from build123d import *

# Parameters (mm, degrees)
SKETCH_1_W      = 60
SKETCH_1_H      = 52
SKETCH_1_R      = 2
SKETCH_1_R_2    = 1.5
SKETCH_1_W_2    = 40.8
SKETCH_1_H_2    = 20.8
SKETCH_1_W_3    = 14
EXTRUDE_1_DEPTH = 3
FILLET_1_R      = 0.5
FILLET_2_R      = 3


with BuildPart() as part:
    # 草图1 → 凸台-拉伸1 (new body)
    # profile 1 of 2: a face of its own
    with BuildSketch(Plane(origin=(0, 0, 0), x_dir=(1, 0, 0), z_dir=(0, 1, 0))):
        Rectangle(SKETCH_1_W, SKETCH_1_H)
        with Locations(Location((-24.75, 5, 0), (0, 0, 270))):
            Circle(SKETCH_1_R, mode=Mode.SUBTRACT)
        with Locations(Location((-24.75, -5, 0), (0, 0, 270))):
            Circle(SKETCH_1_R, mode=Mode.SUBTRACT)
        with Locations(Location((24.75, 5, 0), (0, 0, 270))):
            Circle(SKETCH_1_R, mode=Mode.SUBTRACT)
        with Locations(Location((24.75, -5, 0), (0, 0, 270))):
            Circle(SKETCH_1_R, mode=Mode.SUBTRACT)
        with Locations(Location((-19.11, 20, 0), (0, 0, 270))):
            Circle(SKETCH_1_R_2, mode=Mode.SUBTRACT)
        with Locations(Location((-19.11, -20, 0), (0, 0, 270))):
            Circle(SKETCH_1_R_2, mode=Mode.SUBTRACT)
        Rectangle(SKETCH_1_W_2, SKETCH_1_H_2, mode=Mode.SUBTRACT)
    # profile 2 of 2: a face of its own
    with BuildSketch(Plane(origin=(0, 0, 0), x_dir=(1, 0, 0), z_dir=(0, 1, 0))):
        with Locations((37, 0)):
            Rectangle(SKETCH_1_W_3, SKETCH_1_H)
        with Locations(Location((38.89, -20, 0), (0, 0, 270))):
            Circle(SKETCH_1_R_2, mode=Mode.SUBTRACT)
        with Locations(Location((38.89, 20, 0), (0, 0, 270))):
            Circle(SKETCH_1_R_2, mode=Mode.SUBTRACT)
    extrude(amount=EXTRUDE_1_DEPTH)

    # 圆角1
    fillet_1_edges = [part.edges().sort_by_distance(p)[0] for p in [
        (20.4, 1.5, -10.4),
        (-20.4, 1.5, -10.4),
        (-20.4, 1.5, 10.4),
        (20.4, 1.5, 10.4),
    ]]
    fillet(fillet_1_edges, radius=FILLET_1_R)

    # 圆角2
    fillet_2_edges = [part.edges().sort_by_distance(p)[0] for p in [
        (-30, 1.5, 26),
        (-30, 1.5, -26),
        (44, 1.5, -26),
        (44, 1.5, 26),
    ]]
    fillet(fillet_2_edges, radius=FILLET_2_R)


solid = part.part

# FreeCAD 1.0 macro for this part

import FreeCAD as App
import Part
import Sketcher
from FreeCAD import Vector


def edges_at(feature, points):
    """Names of the edges that pass closest to the given points."""
    edges = feature.Shape.Edges
    near = lambda p: min(range(len(edges)), key=lambda i: edges[i].distToShape(Part.Vertex(*p))[0])
    return sorted({f"Edge{near(p) + 1}" for p in points})

doc = App.newDocument("Part")
body = doc.addObject("PartDesign::Body", "Body")

sketch1 = body.newObject("Sketcher::SketchObject", "Sketch")
sketch1.AttachmentSupport = (doc.getObject("XZ_Plane"), [""])
sketch1.MapMode = "FlatFace"
sketch1.addGeometry([
    Part.LineSegment(Vector(-30, -26, 0), Vector(-30, 26, 0)),
    Part.LineSegment(Vector(-30, 26, 0), Vector(44, 26, 0)),
    Part.LineSegment(Vector(44, 26, 0), Vector(44, -26, 0)),
    Part.LineSegment(Vector(44, -26, 0), Vector(-30, -26, 0)),
    Part.Circle(Vector(-19.1, 20, 0), Vector(0, 0, 1), 1.5),
    Part.Circle(Vector(-24.8, 5, 0), Vector(0, 0, 1), 2),
    Part.Circle(Vector(24.8, 5, 0), Vector(0, 0, 1), 2),
    Part.Circle(Vector(-24.8, -5, 0), Vector(0, 0, 1), 2),
    Part.LineSegment(Vector(20.4, 10.4, 0), Vector(-20.4, 10.4, 0)),
    Part.LineSegment(Vector(-20.4, 10.4, 0), Vector(-20.4, -10.4, 0)),
    Part.LineSegment(Vector(-20.4, -10.4, 0), Vector(20.4, -10.4, 0)),
    Part.LineSegment(Vector(20.4, -10.4, 0), Vector(20.4, 10.4, 0)),
    Part.Circle(Vector(-19.1, -20, 0), Vector(0, 0, 1), 1.5),
    Part.Circle(Vector(24.8, -5, 0), Vector(0, 0, 1), 2),
    Part.Circle(Vector(38.9, -20, 0), Vector(0, 0, 1), 1.5),
    Part.Circle(Vector(38.9, 20, 0), Vector(0, 0, 1), 1.5),
], False)
sketch1.addConstraint([
    Sketcher.Constraint("Coincident", 0, 2, 1, 1),
    Sketcher.Constraint("Coincident", 1, 2, 2, 1),
    Sketcher.Constraint("Coincident", 2, 2, 3, 1),
    Sketcher.Constraint("Coincident", 3, 2, 0, 1),
    Sketcher.Constraint("Coincident", 8, 2, 9, 1),
    Sketcher.Constraint("Coincident", 9, 2, 10, 1),
    Sketcher.Constraint("Coincident", 10, 2, 11, 1),
    Sketcher.Constraint("Coincident", 11, 2, 8, 1),
    Sketcher.Constraint("Vertical", 0),
    Sketcher.Constraint("Horizontal", 1),
    Sketcher.Constraint("Vertical", 2),
    Sketcher.Constraint("Horizontal", 3),
    Sketcher.Constraint("Horizontal", 8),
    Sketcher.Constraint("Vertical", 9),
    Sketcher.Constraint("Horizontal", 10),
    Sketcher.Constraint("Vertical", 11),
    Sketcher.Constraint("Equal", 5, 6),
    Sketcher.Constraint("Equal", 6, 7),
    Sketcher.Constraint("Equal", 4, 12),
    Sketcher.Constraint("Equal", 7, 13),
    Sketcher.Constraint("Equal", 12, 14),
    Sketcher.Constraint("Equal", 14, 15),
    Sketcher.Constraint("Symmetric", 6, 3, 7, 3, -1, 1),
    Sketcher.Constraint("Symmetric", 5, 3, 13, 3, -1, 1),
    Sketcher.Constraint("Symmetric", 8, 2, 10, 2, -1, 1),
    Sketcher.Constraint("Symmetric", 5, 3, 6, 3, -2),
    Sketcher.Constraint("Symmetric", 4, 3, 12, 3, -1),
    Sketcher.Constraint("Symmetric", 14, 3, 15, 3, -1),
    Sketcher.Constraint("Horizontal", 12, 3, 14, 3),
    Sketcher.Constraint("Diameter", 4, 3.0),
    Sketcher.Constraint("Diameter", 5, 4.0),
    Sketcher.Constraint("DistanceX", 1, 1, 1, 2, 74.0),
    Sketcher.Constraint("DistanceY", 0, 1, 0, 2, 52.0),
    Sketcher.Constraint("DistanceX", 8, 2, 8, 1, 40.8),
    Sketcher.Constraint("DistanceY", 9, 2, 9, 1, 20.8),
    Sketcher.Constraint("DistanceY", -1, 1, 4, 3, 20.0),
    Sketcher.Constraint("DistanceY", -1, 1, 5, 3, 5.0),
    Sketcher.Constraint("DistanceX", 0, 2, -1, 1, 30.0),
    Sketcher.Constraint("DistanceY", -1, 1, 0, 2, 26.0),
    Sketcher.Constraint("DistanceX", 12, 3, 14, 3, 58.0),
    Sketcher.Constraint("DistanceX", 5, 3, 6, 3, 49.5),
    Sketcher.Constraint("DistanceX", 4, 3, -1, 1, 19.11),
])
pad1 = body.newObject("PartDesign::Pad", "Pad")
pad1.Profile = sketch1
pad1.Length = 3
pad1.Reversed = True
doc.recompute()

fillet = body.newObject("PartDesign::Fillet", "Fillet")
fillet.Base = (pad1, edges_at(pad1, [
    (20.4, 1.5, -10.4),
    (-20.4, 1.5, -10.4),
    (-20.4, 1.5, 10.4),
    (20.4, 1.5, 10.4),
]))
fillet.Radius = 0.5
doc.recompute()

fillet2 = body.newObject("PartDesign::Fillet", "Fillet001")
fillet2.Base = (fillet, edges_at(fillet, [
    (-30, 1.5, 26),
    (-30, 1.5, -26),
    (44, 1.5, -26),
    (44, 1.5, 26),
]))
fillet2.Radius = 3

doc.recompute()
